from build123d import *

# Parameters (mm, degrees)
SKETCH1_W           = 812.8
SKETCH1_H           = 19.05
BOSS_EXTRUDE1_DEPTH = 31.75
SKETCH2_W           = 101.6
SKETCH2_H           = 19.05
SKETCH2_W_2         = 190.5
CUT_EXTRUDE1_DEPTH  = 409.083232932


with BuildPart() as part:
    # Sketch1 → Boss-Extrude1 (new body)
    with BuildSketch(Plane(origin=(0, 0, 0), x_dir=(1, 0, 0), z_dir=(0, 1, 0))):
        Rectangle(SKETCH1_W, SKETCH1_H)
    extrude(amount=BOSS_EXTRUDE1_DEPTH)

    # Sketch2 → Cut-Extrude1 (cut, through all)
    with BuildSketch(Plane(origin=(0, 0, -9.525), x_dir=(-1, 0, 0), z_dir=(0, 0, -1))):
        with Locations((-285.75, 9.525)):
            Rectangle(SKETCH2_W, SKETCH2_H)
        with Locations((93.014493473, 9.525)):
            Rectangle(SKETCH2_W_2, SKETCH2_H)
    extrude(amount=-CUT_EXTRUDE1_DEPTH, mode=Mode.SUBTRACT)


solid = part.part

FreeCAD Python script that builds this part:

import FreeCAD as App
import Part
import Sketcher
Q = App.Units.Quantity

doc = App.newDocument("Part")
params = doc.addObject("Spreadsheet::Sheet", "Params")
for row, (alias, value) in enumerate([
    ("sketch1_width", "32 in"),
    ("sketch1_height", "0.75 in"),
    ("pad1_length", "1.25 in"),
    ("sketch2_width", "4 in"),
    ("sketch2_width2", "7.5 in"),
    ("sketch2_height", "0.75 in"),
], start=1):
    params.set(f"A{row}", alias)
    params.set(f"B{row}", "=" + value)
    params.setAlias(f"B{row}", alias)

body = doc.addObject("PartDesign::Body", "Body")

sketch1 = body.newObject("Sketcher::SketchObject", "Sketch")
sketch1.AttachmentSupport = (doc.getObject("XZ_Plane"), [""])
sketch1.MapMode = "FlatFace"
sketch1.addGeometry(Part.LineSegment(App.Vector(-406, -10, 0), App.Vector(-406, 10, 0)), False)
sketch1.addGeometry(Part.LineSegment(App.Vector(-406, 10, 0), App.Vector(406, 10, 0)), False)
sketch1.addGeometry(Part.LineSegment(App.Vector(406, 10, 0), App.Vector(406, -10, 0)), False)
sketch1.addGeometry(Part.LineSegment(App.Vector(406, -10, 0), App.Vector(-406, -10, 0)), False)
sketch1.addConstraint(Sketcher.Constraint("Coincident", 0, 2, 1, 1))
sketch1.addConstraint(Sketcher.Constraint("Coincident", 1, 2, 2, 1))
sketch1.addConstraint(Sketcher.Constraint("Coincident", 2, 2, 3, 1))
sketch1.addConstraint(Sketcher.Constraint("Coincident", 3, 2, 0, 1))
sketch1.addConstraint(Sketcher.Constraint("Vertical", 0))
sketch1.addConstraint(Sketcher.Constraint("Horizontal", 1))
sketch1.addConstraint(Sketcher.Constraint("Vertical", 2))
sketch1.addConstraint(Sketcher.Constraint("Horizontal", 3))
sketch1.addConstraint(Sketcher.Constraint("Symmetric", 0, 2, 2, 2, -1, 1))
sketch1.addConstraint(Sketcher.Constraint("DistanceX", 1, 1, 1, 2, Q("32 in")))
sketch1.addConstraint(Sketcher.Constraint("DistanceY", 0, 1, 0, 2, Q("0.75 in")))
sketch1.setExpression("Constraints[9]", "Params.sketch1_width")
sketch1.setExpression("Constraints[10]", "Params.sketch1_height")
pad1 = body.newObject("PartDesign::Pad", "Pad")
pad1.Profile = sketch1
pad1.setExpression("Length", "Params.pad1_length")
pad1.Reversed = True

sketch2 = body.newObject("Sketcher::SketchObject", "Sketch001")
sketch2.AttachmentSupport = (doc.getObject("XY_Plane"), [""])
sketch2.MapMode = "FlatFace"
sketch2.AttachmentOffset = App.Placement(App.Vector(0, 0, -0.375 * 25.4), App.Rotation())
sketch2.addGeometry(Part.LineSegment(App.Vector(337, 19, 0), App.Vector(337, 0, 0)), False)
sketch2.addGeometry(Part.LineSegment(App.Vector(337, 0, 0), App.Vector(235, 0, 0)), False)
sketch2.addGeometry(Part.LineSegment(App.Vector(235, 0, 0), App.Vector(235, 19, 0)), False)
sketch2.addGeometry(Part.LineSegment(App.Vector(235, 19, 0), App.Vector(337, 19, 0)), False)
sketch2.addGeometry(Part.LineSegment(App.Vector(2, 19, 0), App.Vector(2, 0, 0)), False)
sketch2.addGeometry(Part.LineSegment(App.Vector(2, 0, 0), App.Vector(-188, 0, 0)), False)
sketch2.addGeometry(Part.LineSegment(App.Vector(-188, 0, 0), App.Vector(-188, 19, 0)), False)
sketch2.addGeometry(Part.LineSegment(App.Vector(-188, 19, 0), App.Vector(2, 19, 0)), False)
sketch2.addConstraint(Sketcher.Constraint("Coincident", 0, 2, 1, 1))
sketch2.addConstraint(Sketcher.Constraint("Coincident", 1, 2, 2, 1))
sketch2.addConstraint(Sketcher.Constraint("Coincident", 2, 2, 3, 1))
sketch2.addConstraint(Sketcher.Constraint("Coincident", 3, 2, 0, 1))
sketch2.addConstraint(Sketcher.Constraint("Coincident", 4, 2, 5, 1))
sketch2.addConstraint(Sketcher.Constraint("Coincident", 5, 2, 6, 1))
sketch2.addConstraint(Sketcher.Constraint("Coincident", 6, 2, 7, 1))
sketch2.addConstraint(Sketcher.Constraint("Coincident", 7, 2, 4, 1))
sketch2.addConstraint(Sketcher.Constraint("Vertical", 0))
sketch2.addConstraint(Sketcher.Constraint("Horizontal", 1))
sketch2.addConstraint(Sketcher.Constraint("Vertical", 2))
sketch2.addConstraint(Sketcher.Constraint("Horizontal", 3))
sketch2.addConstraint(Sketcher.Constraint("Vertical", 4))
sketch2.addConstraint(Sketcher.Constraint("Horizontal", 5))
sketch2.addConstraint(Sketcher.Constraint("Vertical", 6))
sketch2.addConstraint(Sketcher.Constraint("Horizontal", 7))
sketch2.addConstraint(Sketcher.Constraint("PointOnObject", 0, 2, -1))
sketch2.addConstraint(Sketcher.Constraint("PointOnObject", 4, 2, -1))
sketch2.addConstraint(Sketcher.Constraint("Horizontal", 3, 2, 6, 2))
sketch2.addConstraint(Sketcher.Constraint("DistanceX", 1, 2, 1, 1, Q("4 in")))
sketch2.addConstraint(Sketcher.Constraint("DistanceX", 5, 2, 5, 1, Q("7.5 in")))
sketch2.addConstraint(Sketcher.Constraint("DistanceY", 0, 2, 0, 1, Q("0.75 in")))
sketch2.addConstraint(Sketcher.Constraint("DistanceX", -1, 1, 0, 2, Q("13.25 in")))
sketch2.addConstraint(Sketcher.Constraint("DistanceX", -1, 1, 4, 2, Q("2.235507 mm")))
sketch2.setExpression("Constraints[19]", "Params.sketch2_width")
sketch2.setExpression("Constraints[20]", "Params.sketch2_width2")
sketch2.setExpression("Constraints[21]", "Params.sketch2_height")
pocket1 = body.newObject("PartDesign::Pocket", "Pocket")
pocket1.Profile = sketch2
pocket1.Type = "ThroughAll"
pocket1.Reversed = True

doc.recompute()
